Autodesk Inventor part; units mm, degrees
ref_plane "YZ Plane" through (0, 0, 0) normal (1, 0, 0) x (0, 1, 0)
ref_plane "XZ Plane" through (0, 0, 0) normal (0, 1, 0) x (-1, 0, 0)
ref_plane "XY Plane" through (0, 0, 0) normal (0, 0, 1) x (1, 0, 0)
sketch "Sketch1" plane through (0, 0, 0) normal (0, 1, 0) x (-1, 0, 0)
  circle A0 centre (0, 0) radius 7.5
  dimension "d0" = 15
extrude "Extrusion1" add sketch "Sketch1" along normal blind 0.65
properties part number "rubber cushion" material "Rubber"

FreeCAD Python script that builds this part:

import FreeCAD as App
import Part
import Sketcher

V = App.Vector

doc = App.newDocument("Part")
params = doc.addObject("Spreadsheet::Sheet", "Params")
for row, (alias, value) in enumerate([
    ("sketch1_diameter", "15 mm"),
    ("pad1_length", "0.65 mm"),
], start=1):
    params.set(f"A{row}", alias)
    params.set(f"B{row}", "=" + value)
    params.setAlias(f"B{row}", alias)

body = doc.addObject("PartDesign::Body", "Body")

# Sketch on XZ plane
sketch1 = body.newObject("Sketcher::SketchObject", "Sketch")
sketch1.AttachmentSupport = (doc.getObject("XZ_Plane"), [""])
sketch1.MapMode = "FlatFace"
sketch1.addGeometry(Part.Circle(V(0, 0, 0), V(0, 0, 1), 8), False)
sketch1.addConstraint(Sketcher.Constraint("Coincident", 0, 3, -1, 1))
sketch1.addConstraint(Sketcher.Constraint("Diameter", 0, 15.0))
sketch1.setExpression("Constraints[1]", "Params.sketch1_diameter")
pad1 = body.newObject("PartDesign::Pad", "Pad")
pad1.Profile = sketch1
pad1.setExpression("Length", "Params.pad1_length")
pad1.Reversed = True

doc.recompute()
